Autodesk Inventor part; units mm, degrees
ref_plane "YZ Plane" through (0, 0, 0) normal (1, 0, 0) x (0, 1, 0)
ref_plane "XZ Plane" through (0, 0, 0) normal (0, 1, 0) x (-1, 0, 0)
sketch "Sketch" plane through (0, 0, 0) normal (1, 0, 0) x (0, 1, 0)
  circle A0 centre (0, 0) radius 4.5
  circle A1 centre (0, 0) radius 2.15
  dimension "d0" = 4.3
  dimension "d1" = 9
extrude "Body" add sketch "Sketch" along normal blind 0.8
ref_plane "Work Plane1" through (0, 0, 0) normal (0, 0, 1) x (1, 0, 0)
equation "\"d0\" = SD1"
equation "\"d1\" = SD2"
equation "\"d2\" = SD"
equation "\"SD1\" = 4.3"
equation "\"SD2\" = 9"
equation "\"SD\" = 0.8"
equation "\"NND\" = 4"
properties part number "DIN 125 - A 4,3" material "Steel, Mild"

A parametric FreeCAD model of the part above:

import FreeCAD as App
import Part
import Sketcher

V = App.Vector

doc = App.newDocument("Part")
params = doc.addObject("Spreadsheet::Sheet", "Params")
for row, (alias, value) in enumerate([
    ("sketch1_diameter", "9 mm"),
    ("sketch1_diameter2", "4.3 mm"),
    ("pad1_length", "0.8 mm"),
], start=1):
    params.set(f"A{row}", alias)
    params.set(f"B{row}", "=" + value)
    params.setAlias(f"B{row}", alias)

body = doc.addObject("PartDesign::Body", "Body")

# Sketch on YZ plane
sketch1 = body.newObject("Sketcher::SketchObject", "Sketch")
sketch1.AttachmentSupport = (doc.getObject("YZ_Plane"), [""])
sketch1.MapMode = "FlatFace"
sketch1.addGeometry([
    Part.Circle(V(0, 0, 0), V(0, 0, 1), 4.5),
    Part.Circle(V(0, 0, 0), V(0, 0, 1), 2.1),
], False)
sketch1.addConstraint([
    Sketcher.Constraint("Coincident", 0, 3, -1, 1),
    Sketcher.Constraint("Coincident", 1, 3, -1, 1),
    Sketcher.Constraint("Diameter", 0, 9.0),
    Sketcher.Constraint("Diameter", 1, 4.3),
])
sketch1.setExpression("Constraints[2]", "Params.sketch1_diameter")
sketch1.setExpression("Constraints[3]", "Params.sketch1_diameter2")
pad1 = body.newObject("PartDesign::Pad", "Pad")
pad1.Profile = sketch1
pad1.setExpression("Length", "Params.pad1_length")

doc.recompute()
